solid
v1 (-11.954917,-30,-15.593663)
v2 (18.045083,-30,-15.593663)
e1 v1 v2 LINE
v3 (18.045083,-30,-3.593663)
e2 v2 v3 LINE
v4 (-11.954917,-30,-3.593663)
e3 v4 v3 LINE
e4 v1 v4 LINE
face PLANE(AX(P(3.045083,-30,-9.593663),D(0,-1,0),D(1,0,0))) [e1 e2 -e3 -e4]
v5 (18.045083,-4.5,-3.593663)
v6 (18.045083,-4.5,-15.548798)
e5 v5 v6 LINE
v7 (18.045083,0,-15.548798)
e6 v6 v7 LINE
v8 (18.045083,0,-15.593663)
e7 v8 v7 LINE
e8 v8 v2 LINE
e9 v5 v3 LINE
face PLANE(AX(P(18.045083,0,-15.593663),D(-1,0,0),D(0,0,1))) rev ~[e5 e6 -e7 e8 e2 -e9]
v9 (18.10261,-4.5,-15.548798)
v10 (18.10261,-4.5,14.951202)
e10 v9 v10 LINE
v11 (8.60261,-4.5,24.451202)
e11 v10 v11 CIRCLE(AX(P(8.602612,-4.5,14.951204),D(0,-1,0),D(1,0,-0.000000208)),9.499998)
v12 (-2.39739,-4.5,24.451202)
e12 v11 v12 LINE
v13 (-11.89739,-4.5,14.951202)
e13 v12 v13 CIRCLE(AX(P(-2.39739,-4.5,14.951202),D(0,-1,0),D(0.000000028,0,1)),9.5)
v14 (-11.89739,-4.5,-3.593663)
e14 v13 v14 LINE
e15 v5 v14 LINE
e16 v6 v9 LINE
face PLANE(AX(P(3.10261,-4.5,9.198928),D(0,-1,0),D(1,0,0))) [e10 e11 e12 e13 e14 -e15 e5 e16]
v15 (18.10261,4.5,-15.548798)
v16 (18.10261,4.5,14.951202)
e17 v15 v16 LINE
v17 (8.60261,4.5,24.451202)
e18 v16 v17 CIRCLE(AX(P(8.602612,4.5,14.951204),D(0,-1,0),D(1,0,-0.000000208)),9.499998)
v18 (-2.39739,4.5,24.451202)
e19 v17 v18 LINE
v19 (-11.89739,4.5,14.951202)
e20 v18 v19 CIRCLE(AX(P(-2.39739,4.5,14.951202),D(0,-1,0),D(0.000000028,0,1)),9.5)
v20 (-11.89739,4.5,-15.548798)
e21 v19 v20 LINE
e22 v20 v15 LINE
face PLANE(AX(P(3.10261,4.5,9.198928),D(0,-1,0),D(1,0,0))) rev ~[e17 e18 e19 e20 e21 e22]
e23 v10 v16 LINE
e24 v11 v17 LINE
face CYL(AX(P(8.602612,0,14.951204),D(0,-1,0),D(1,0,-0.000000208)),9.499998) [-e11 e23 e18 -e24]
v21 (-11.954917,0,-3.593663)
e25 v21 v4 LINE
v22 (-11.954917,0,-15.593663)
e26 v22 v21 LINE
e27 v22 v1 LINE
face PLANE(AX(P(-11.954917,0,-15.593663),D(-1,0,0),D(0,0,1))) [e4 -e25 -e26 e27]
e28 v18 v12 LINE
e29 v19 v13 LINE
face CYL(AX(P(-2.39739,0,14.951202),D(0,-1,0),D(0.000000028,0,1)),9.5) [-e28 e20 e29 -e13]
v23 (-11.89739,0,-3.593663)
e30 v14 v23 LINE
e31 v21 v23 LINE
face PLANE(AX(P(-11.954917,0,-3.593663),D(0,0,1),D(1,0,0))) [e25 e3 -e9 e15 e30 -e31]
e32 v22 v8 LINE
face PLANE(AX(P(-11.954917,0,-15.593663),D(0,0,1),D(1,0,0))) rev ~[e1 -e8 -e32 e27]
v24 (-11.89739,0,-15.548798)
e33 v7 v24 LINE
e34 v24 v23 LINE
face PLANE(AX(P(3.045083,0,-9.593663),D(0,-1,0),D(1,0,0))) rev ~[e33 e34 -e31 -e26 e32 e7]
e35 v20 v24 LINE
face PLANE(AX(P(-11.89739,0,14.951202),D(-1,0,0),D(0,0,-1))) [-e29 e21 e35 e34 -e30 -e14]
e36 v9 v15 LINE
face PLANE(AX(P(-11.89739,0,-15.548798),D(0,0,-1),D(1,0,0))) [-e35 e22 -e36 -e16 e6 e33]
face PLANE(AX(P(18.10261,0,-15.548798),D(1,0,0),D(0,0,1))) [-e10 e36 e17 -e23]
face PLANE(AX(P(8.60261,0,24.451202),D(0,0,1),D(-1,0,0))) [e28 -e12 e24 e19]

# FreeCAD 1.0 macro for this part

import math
import FreeCAD as App
import Part
import Sketcher
Q = App.Units.Quantity

doc = App.newDocument("Part")
body = doc.addObject("PartDesign::Body", "Body")

sketch1 = doc.addObject("Sketcher::SketchObject", "Sketch")
body.addObject(sketch1)
sketch1.AttachmentSupport = (doc.XZ_Plane, [""])
sketch1.MapMode = "FlatFace"
sketch1.addGeometry([
    Part.LineSegment(App.Vector(9, 24, 0), App.Vector(-2, 24, 0)),
    Part.ArcOfCircle(Part.Circle(App.Vector(-2, 15, 0), App.Vector(0, 0, 1), 9), math.radians(90), math.radians(180)),
    Part.LineSegment(App.Vector(-12, 15, 0), App.Vector(-12, -16, 0)),
    Part.LineSegment(App.Vector(-12, -16, 0), App.Vector(18, -16, 0)),
    Part.LineSegment(App.Vector(18, -16, 0), App.Vector(18, 15, 0)),
    Part.ArcOfCircle(Part.Circle(App.Vector(9, 15, 0), App.Vector(0, 0, 1), 9), math.radians(0), math.radians(90)),
], False)
sketch1.addConstraint([
    Sketcher.Constraint("Tangent", 0, 2, 1, 1),
    Sketcher.Constraint("Tangent", 1, 2, 2, 1),
    Sketcher.Constraint("Coincident", 2, 2, 3, 1),
    Sketcher.Constraint("Coincident", 3, 2, 4, 1),
    Sketcher.Constraint("Tangent", 4, 2, 5, 1),
    Sketcher.Constraint("Tangent", 5, 2, 0, 1),
    Sketcher.Constraint("Horizontal", 0),
    Sketcher.Constraint("Vertical", 2),
    Sketcher.Constraint("Horizontal", 3),
    Sketcher.Constraint("Vertical", 4),
    Sketcher.Constraint("Equal", 1, 5),
    Sketcher.Constraint("Radius", 1, Q("9.5 mm")),
    Sketcher.Constraint("DistanceX", 0, 2, 0, 1, Q("11 mm")),
    Sketcher.Constraint("DistanceY", 2, 2, 2, 1, Q("30.5 mm")),
    Sketcher.Constraint("DistanceY", -1, 1, 0, 2, Q("24.451202 mm")),
    Sketcher.Constraint("DistanceX", 1, 3, -1, 1, Q("2.39739 mm")),
])
pad1 = doc.addObject("PartDesign::Pad", "Pad")
body.addObject(pad1)
pad1.Profile = sketch1
pad1.Length = 9
pad1.Midplane = True

sketch2 = doc.addObject("Sketcher::SketchObject", "Sketch001")
body.addObject(sketch2)
sketch2.AttachmentSupport = (doc.XZ_Plane, [""])
sketch2.MapMode = "FlatFace"
sketch2.addGeometry([
    Part.LineSegment(App.Vector(-12, -4, 0), App.Vector(-12, -16, 0)),
    Part.LineSegment(App.Vector(-12, -16, 0), App.Vector(18, -16, 0)),
    Part.LineSegment(App.Vector(18, -16, 0), App.Vector(18, -4, 0)),
    Part.LineSegment(App.Vector(18, -4, 0), App.Vector(-12, -4, 0)),
], False)
sketch2.addConstraint([
    Sketcher.Constraint("Coincident", 0, 2, 1, 1),
    Sketcher.Constraint("Coincident", 1, 2, 2, 1),
    Sketcher.Constraint("Coincident", 2, 2, 3, 1),
    Sketcher.Constraint("Coincident", 3, 2, 0, 1),
    Sketcher.Constraint("Vertical", 0),
    Sketcher.Constraint("Horizontal", 1),
    Sketcher.Constraint("Vertical", 2),
    Sketcher.Constraint("Horizontal", 3),
    Sketcher.Constraint("DistanceX", 1, 1, 1, 2, Q("30 mm")),
    Sketcher.Constraint("DistanceY", 0, 2, 0, 1, Q("12 mm")),
    Sketcher.Constraint("DistanceX", 0, 2, -1, 1, Q("11.954917 mm")),
    Sketcher.Constraint("DistanceY", 0, 2, -1, 1, Q("15.593663 mm")),
])
pad2 = doc.addObject("PartDesign::Pad", "Pad001")
body.addObject(pad2)
pad2.Profile = sketch2
pad2.Length = 30

doc.recompute()
